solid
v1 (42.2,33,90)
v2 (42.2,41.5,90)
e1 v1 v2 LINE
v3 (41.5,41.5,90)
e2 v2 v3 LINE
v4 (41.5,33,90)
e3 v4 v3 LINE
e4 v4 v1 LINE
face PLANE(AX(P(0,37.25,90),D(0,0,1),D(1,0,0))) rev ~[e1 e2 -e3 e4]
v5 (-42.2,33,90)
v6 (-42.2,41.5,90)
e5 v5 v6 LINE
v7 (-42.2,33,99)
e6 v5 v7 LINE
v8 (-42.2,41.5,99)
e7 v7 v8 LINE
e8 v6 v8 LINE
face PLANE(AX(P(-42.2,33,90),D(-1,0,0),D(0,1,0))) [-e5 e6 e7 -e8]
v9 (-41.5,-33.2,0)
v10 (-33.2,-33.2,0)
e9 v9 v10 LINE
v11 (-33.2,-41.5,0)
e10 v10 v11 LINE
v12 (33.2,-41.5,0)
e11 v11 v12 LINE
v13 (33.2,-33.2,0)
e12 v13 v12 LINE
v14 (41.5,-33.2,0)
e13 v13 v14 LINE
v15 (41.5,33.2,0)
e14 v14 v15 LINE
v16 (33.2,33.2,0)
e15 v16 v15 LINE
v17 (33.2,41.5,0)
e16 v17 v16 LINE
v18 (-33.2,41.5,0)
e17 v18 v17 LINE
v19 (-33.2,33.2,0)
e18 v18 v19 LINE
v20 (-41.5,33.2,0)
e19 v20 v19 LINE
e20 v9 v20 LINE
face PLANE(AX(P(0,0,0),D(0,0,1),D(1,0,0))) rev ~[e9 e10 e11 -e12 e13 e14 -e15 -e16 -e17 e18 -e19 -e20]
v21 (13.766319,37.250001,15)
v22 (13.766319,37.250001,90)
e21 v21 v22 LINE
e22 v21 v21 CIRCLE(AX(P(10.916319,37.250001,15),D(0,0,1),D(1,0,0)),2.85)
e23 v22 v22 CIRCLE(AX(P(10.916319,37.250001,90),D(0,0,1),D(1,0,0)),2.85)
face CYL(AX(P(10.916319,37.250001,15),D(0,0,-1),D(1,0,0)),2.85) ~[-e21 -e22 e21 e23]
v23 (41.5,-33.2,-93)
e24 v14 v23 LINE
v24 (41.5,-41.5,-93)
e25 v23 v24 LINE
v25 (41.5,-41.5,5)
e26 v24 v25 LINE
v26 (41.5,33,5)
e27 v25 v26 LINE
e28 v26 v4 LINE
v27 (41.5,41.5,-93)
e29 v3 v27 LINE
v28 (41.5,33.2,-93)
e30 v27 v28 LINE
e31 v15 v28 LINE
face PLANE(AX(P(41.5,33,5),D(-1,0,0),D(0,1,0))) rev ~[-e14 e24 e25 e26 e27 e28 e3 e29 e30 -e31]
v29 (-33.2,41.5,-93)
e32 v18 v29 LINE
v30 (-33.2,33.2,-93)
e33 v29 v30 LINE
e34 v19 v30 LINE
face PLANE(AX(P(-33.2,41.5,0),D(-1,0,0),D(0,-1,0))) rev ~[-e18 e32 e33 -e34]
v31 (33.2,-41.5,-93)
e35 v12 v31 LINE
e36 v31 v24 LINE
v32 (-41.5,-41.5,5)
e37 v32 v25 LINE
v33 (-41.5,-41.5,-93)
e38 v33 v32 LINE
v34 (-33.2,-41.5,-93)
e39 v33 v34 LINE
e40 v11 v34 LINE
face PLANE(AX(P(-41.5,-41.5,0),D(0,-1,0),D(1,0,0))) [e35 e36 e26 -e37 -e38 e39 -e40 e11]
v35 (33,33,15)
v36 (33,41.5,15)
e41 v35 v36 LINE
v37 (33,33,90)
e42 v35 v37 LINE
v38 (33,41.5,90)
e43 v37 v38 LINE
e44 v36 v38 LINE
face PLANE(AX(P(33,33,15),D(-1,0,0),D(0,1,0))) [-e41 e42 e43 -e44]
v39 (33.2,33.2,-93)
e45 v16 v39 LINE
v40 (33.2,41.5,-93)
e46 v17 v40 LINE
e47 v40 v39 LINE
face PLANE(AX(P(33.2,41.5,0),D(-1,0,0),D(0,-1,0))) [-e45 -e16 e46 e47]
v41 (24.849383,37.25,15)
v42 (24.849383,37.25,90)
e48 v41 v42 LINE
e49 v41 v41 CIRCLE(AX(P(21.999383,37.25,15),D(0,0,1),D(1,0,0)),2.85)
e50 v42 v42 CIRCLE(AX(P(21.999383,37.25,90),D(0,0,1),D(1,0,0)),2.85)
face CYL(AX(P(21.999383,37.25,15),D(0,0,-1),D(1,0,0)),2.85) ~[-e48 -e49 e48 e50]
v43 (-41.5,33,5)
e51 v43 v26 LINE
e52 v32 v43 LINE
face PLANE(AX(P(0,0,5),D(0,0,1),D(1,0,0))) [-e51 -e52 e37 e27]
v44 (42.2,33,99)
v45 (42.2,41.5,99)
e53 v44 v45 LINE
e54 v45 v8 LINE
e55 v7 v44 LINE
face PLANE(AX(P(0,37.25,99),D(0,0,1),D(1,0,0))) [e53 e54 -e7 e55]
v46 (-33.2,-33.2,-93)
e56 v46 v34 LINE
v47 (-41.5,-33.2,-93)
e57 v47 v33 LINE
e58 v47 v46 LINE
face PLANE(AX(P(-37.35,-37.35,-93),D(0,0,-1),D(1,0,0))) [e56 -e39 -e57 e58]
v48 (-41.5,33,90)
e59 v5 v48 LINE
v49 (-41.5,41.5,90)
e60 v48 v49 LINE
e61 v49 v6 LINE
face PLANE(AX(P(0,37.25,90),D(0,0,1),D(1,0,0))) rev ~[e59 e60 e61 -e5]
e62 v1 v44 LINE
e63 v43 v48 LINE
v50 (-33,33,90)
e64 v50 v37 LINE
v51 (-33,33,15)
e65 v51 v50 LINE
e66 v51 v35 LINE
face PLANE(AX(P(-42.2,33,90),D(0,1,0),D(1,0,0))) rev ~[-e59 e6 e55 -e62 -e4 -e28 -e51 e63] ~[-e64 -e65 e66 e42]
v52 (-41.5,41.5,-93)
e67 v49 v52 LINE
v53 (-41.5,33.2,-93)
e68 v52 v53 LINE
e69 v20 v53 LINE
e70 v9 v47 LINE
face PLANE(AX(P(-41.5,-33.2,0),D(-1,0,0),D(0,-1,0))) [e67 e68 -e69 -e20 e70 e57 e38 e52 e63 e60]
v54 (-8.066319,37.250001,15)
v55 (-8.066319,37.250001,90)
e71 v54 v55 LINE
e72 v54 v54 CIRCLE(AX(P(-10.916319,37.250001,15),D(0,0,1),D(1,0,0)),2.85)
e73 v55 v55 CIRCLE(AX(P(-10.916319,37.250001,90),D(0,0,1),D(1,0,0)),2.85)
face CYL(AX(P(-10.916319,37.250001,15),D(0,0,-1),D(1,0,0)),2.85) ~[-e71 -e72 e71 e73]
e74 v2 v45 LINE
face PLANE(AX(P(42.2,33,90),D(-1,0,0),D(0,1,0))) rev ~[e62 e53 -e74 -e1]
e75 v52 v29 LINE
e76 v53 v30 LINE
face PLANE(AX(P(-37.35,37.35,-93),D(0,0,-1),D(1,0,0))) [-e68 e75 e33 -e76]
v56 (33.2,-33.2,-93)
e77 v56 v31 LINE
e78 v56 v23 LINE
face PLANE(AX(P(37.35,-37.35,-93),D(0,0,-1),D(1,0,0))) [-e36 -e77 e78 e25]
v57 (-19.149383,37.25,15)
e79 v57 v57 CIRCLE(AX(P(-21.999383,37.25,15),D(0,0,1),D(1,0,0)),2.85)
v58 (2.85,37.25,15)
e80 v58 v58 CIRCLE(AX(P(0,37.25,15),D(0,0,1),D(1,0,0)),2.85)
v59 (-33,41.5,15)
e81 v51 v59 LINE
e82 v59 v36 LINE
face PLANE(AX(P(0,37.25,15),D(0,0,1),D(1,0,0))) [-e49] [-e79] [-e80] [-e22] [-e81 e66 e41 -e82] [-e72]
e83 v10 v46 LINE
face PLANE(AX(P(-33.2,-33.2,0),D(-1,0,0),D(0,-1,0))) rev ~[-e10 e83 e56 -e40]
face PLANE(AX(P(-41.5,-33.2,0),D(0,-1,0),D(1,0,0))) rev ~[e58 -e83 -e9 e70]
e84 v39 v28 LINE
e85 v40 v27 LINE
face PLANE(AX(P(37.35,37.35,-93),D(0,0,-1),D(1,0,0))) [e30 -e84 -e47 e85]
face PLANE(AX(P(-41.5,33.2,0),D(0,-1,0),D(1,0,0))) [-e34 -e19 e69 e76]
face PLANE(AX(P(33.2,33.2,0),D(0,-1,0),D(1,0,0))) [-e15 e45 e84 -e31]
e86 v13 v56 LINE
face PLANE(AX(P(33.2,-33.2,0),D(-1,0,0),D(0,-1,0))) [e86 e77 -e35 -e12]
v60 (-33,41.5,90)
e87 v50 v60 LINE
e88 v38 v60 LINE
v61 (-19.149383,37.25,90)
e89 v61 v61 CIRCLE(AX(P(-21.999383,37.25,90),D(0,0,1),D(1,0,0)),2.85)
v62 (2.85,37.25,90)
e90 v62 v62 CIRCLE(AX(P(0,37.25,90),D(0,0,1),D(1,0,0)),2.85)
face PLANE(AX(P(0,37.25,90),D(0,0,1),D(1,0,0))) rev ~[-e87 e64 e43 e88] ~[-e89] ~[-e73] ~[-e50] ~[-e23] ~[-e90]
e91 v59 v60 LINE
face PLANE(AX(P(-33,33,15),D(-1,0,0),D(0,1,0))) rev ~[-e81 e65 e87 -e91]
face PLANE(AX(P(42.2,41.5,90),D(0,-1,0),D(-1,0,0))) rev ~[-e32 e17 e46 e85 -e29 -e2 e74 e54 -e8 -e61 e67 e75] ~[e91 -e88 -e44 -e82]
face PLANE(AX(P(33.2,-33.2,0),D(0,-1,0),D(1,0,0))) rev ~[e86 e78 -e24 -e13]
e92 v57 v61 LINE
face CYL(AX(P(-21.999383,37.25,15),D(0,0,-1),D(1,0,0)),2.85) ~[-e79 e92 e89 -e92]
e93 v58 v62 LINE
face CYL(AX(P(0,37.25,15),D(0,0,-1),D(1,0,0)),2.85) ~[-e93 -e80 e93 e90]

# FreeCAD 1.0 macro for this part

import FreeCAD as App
import Part
import Sketcher

V = App.Vector
Q = App.Units.Quantity

doc = App.newDocument("Part")
params = doc.addObject("Spreadsheet::Sheet", "Params")
for row, (alias, value) in enumerate([
    ("sketch1_width", "83 mm"),
    ("pad1_length", "5 mm"),
    ("sketch2_width", "83 mm"),
    ("sketch2_height", "8.5 mm"),
    ("pad2_length", "10 mm"),
    ("sketch3_width", "8.5 mm"),
    ("pad3_length", "75 mm"),
    ("sketch4_diameter", "5.7 mm"),
    ("pad4_length", "75 mm"),
    ("sketch5_width", "84.4 mm"),
    ("sketch5_height", "8.5 mm"),
    ("pad5_length", "9 mm"),
    ("sketch6_width", "8.3 mm"),
    ("pad6_length", "93 mm"),
], start=1):
    params.set(f"A{row}", alias)
    params.set(f"B{row}", "=" + value)
    params.setAlias(f"B{row}", alias)

body = doc.addObject("PartDesign::Body", "Body")

# Sketch on XY plane
sketch1 = doc.addObject("Sketcher::SketchObject", "Sketch")
body.addObject(sketch1)
sketch1.AttachmentSupport = (doc.XY_Plane, [""])
sketch1.MapMode = "FlatFace"
sketch1.addGeometry(Part.LineSegment(V(-42, 42, 0), V(-42, -42, 0)), False)
sketch1.addGeometry(Part.LineSegment(V(-42, -42, 0), V(42, -42, 0)), False)
sketch1.addGeometry(Part.LineSegment(V(42, -42, 0), V(42, 42, 0)), False)
sketch1.addGeometry(Part.LineSegment(V(42, 42, 0), V(-42, 42, 0)), False)
sketch1.addConstraint(Sketcher.Constraint("Coincident", 0, 2, 1, 1))
sketch1.addConstraint(Sketcher.Constraint("Coincident", 1, 2, 2, 1))
sketch1.addConstraint(Sketcher.Constraint("Coincident", 2, 2, 3, 1))
sketch1.addConstraint(Sketcher.Constraint("Coincident", 3, 2, 0, 1))
sketch1.addConstraint(Sketcher.Constraint("Vertical", 0))
sketch1.addConstraint(Sketcher.Constraint("Horizontal", 1))
sketch1.addConstraint(Sketcher.Constraint("Vertical", 2))
sketch1.addConstraint(Sketcher.Constraint("Horizontal", 3))
sketch1.addConstraint(Sketcher.Constraint("Symmetric", 0, 2, 2, 2, -1, 1))
sketch1.addConstraint(Sketcher.Constraint("Equal", 3, 0))
sketch1.addConstraint(Sketcher.Constraint("DistanceX", 1, 1, 1, 2, Q("83 mm")))
sketch1.setExpression("Constraints[10]", "Params.sketch1_width")
pad1 = doc.addObject("PartDesign::Pad", "Pad")
body.addObject(pad1)
pad1.Profile = sketch1
pad1.setExpression("Length", "Params.pad1_length")

# Sketch on XY plane
sketch2 = doc.addObject("Sketcher::SketchObject", "Sketch001")
body.addObject(sketch2)
sketch2.AttachmentSupport = (doc.XY_Plane, [""])
sketch2.MapMode = "FlatFace"
sketch2.AttachmentOffset = App.Placement(V(0, 0, 5), App.Rotation())
sketch2.addGeometry(Part.LineSegment(V(-42, 42, 0), V(-42, 33, 0)), False)
sketch2.addGeometry(Part.LineSegment(V(-42, 33, 0), V(42, 33, 0)), False)
sketch2.addGeometry(Part.LineSegment(V(42, 33, 0), V(42, 42, 0)), False)
sketch2.addGeometry(Part.LineSegment(V(42, 42, 0), V(-42, 42, 0)), False)
sketch2.addConstraint(Sketcher.Constraint("Coincident", 0, 2, 1, 1))
sketch2.addConstraint(Sketcher.Constraint("Coincident", 1, 2, 2, 1))
sketch2.addConstraint(Sketcher.Constraint("Coincident", 2, 2, 3, 1))
sketch2.addConstraint(Sketcher.Constraint("Coincident", 3, 2, 0, 1))
sketch2.addConstraint(Sketcher.Constraint("Vertical", 0))
sketch2.addConstraint(Sketcher.Constraint("Horizontal", 1))
sketch2.addConstraint(Sketcher.Constraint("Vertical", 2))
sketch2.addConstraint(Sketcher.Constraint("Horizontal", 3))
sketch2.addConstraint(Sketcher.Constraint("DistanceX", 1, 1, 1, 2, Q("83 mm")))
sketch2.addConstraint(Sketcher.Constraint("DistanceY", 0, 2, 0, 1, Q("8.5 mm")))
sketch2.addConstraint(Sketcher.Constraint("DistanceY", -1, 1, 0, 2, Q("33 mm")))
sketch2.addConstraint(Sketcher.Constraint("DistanceX", 0, 2, -1, 1, Q("41.5 mm")))
sketch2.setExpression("Constraints[8]", "Params.sketch2_width")
sketch2.setExpression("Constraints[9]", "Params.sketch2_height")
pad2 = doc.addObject("PartDesign::Pad", "Pad001")
body.addObject(pad2)
pad2.Profile = sketch2
pad2.setExpression("Length", "Params.pad2_length")

# Sketch on XY plane
sketch3 = doc.addObject("Sketcher::SketchObject", "Sketch002")
body.addObject(sketch3)
sketch3.AttachmentSupport = (doc.XY_Plane, [""])
sketch3.MapMode = "FlatFace"
sketch3.AttachmentOffset = App.Placement(V(0, 0, 15), App.Rotation())
sketch3.addGeometry(Part.LineSegment(V(-42, 42, 0), V(-42, 33, 0)), False)
sketch3.addGeometry(Part.LineSegment(V(-42, 33, 0), V(-33, 33, 0)), False)
sketch3.addGeometry(Part.LineSegment(V(-33, 33, 0), V(-33, 42, 0)), False)
sketch3.addGeometry(Part.LineSegment(V(-33, 42, 0), V(-42, 42, 0)), False)
sketch3.addGeometry(Part.LineSegment(V(33, 42, 0), V(33, 33, 0)), False)
sketch3.addGeometry(Part.LineSegment(V(33, 33, 0), V(42, 33, 0)), False)
sketch3.addGeometry(Part.LineSegment(V(42, 33, 0), V(42, 42, 0)), False)
sketch3.addGeometry(Part.LineSegment(V(42, 42, 0), V(33, 42, 0)), False)
sketch3.addConstraint(Sketcher.Constraint("Coincident", 0, 2, 1, 1))
sketch3.addConstraint(Sketcher.Constraint("Coincident", 1, 2, 2, 1))
sketch3.addConstraint(Sketcher.Constraint("Coincident", 2, 2, 3, 1))
sketch3.addConstraint(Sketcher.Constraint("Coincident", 3, 2, 0, 1))
sketch3.addConstraint(Sketcher.Constraint("Coincident", 4, 2, 5, 1))
sketch3.addConstraint(Sketcher.Constraint("Coincident", 5, 2, 6, 1))
sketch3.addConstraint(Sketcher.Constraint("Coincident", 6, 2, 7, 1))
sketch3.addConstraint(Sketcher.Constraint("Coincident", 7, 2, 4, 1))
sketch3.addConstraint(Sketcher.Constraint("Vertical", 0))
sketch3.addConstraint(Sketcher.Constraint("Horizontal", 1))
sketch3.addConstraint(Sketcher.Constraint("Vertical", 2))
sketch3.addConstraint(Sketcher.Constraint("Horizontal", 3))
sketch3.addConstraint(Sketcher.Constraint("Vertical", 4))
sketch3.addConstraint(Sketcher.Constraint("Horizontal", 5))
sketch3.addConstraint(Sketcher.Constraint("Vertical", 6))
sketch3.addConstraint(Sketcher.Constraint("Horizontal", 7))
sketch3.addConstraint(Sketcher.Constraint("Symmetric", 1, 2, 4, 2, -2))
sketch3.addConstraint(Sketcher.Constraint("Symmetric", 3, 2, 6, 2, -2))
sketch3.addConstraint(Sketcher.Constraint("Equal", 7, 0))
sketch3.addConstraint(Sketcher.Constraint("DistanceX", 1, 1, 1, 2, Q("8.5 mm")))
sketch3.addConstraint(Sketcher.Constraint("DistanceY", -1, 1, 0, 2, Q("33 mm")))
sketch3.addConstraint(Sketcher.Constraint("DistanceX", 1, 2, -1, 1, Q("33 mm")))
sketch3.setExpression("Constraints[19]", "Params.sketch3_width")
pad3 = doc.addObject("PartDesign::Pad", "Pad002")
body.addObject(pad3)
pad3.Profile = sketch3
pad3.setExpression("Length", "Params.pad3_length")

# Sketch on XY plane
sketch4 = doc.addObject("Sketcher::SketchObject", "Sketch003")
body.addObject(sketch4)
sketch4.AttachmentSupport = (doc.XY_Plane, [""])
sketch4.MapMode = "FlatFace"
sketch4.AttachmentOffset = App.Placement(V(0, 0, 15), App.Rotation())
sketch4.addGeometry(Part.Circle(V(-22, 37.2, 0), V(0, 0, 1), 2.9), False)
sketch4.addGeometry(Part.Circle(V(-10.9, 37.3, 0), V(0, 0, 1), 2.9), False)
sketch4.addGeometry(Part.Circle(V(0, 37.2, 0), V(0, 0, 1), 2.9), False)
sketch4.addGeometry(Part.Circle(V(10.9, 37.3, 0), V(0, 0, 1), 2.9), False)
sketch4.addGeometry(Part.Circle(V(22, 37.2, 0), V(0, 0, 1), 2.9), False)
sketch4.addConstraint(Sketcher.Constraint("Equal", 0, 1))
sketch4.addConstraint(Sketcher.Constraint("Equal", 1, 2))
sketch4.addConstraint(Sketcher.Constraint("Equal", 2, 3))
sketch4.addConstraint(Sketcher.Constraint("Equal", 3, 4))
sketch4.addConstraint(Sketcher.Constraint("Symmetric", 1, 3, 3, 3, -2))
sketch4.addConstraint(Sketcher.Constraint("Symmetric", 0, 3, 4, 3, -2))
sketch4.addConstraint(Sketcher.Constraint("PointOnObject", 2, 3, -2))
sketch4.addConstraint(Sketcher.Constraint("Horizontal", 0, 3, 1, 3))
sketch4.addConstraint(Sketcher.Constraint("Horizontal", 1, 3, 2, 3))
sketch4.addConstraint(Sketcher.Constraint("Diameter", 0, Q("5.7 mm")))
sketch4.addConstraint(Sketcher.Constraint("DistanceY", -1, 1, 0, 3, Q("37.25 mm")))
sketch4.addConstraint(Sketcher.Constraint("DistanceX", 1, 3, -1, 1, Q("10.916319 mm")))
sketch4.addConstraint(Sketcher.Constraint("DistanceX", 0, 3, -1, 1, Q("21.999383 mm")))
sketch4.setExpression("Constraints[9]", "Params.sketch4_diameter")
pad4 = doc.addObject("PartDesign::Pad", "Pad003")
body.addObject(pad4)
pad4.Profile = sketch4
pad4.setExpression("Length", "Params.pad4_length")

# Sketch on XY plane
sketch5 = doc.addObject("Sketcher::SketchObject", "Sketch004")
body.addObject(sketch5)
sketch5.AttachmentSupport = (doc.XY_Plane, [""])
sketch5.MapMode = "FlatFace"
sketch5.AttachmentOffset = App.Placement(V(0, 0, 90), App.Rotation())
sketch5.addGeometry(Part.LineSegment(V(-42, 42, 0), V(-42, 33, 0)), False)
sketch5.addGeometry(Part.LineSegment(V(-42, 33, 0), V(42, 33, 0)), False)
sketch5.addGeometry(Part.LineSegment(V(42, 33, 0), V(42, 42, 0)), False)
sketch5.addGeometry(Part.LineSegment(V(42, 42, 0), V(-42, 42, 0)), False)
sketch5.addConstraint(Sketcher.Constraint("Coincident", 0, 2, 1, 1))
sketch5.addConstraint(Sketcher.Constraint("Coincident", 1, 2, 2, 1))
sketch5.addConstraint(Sketcher.Constraint("Coincident", 2, 2, 3, 1))
sketch5.addConstraint(Sketcher.Constraint("Coincident", 3, 2, 0, 1))
sketch5.addConstraint(Sketcher.Constraint("Vertical", 0))
sketch5.addConstraint(Sketcher.Constraint("Horizontal", 1))
sketch5.addConstraint(Sketcher.Constraint("Vertical", 2))
sketch5.addConstraint(Sketcher.Constraint("Horizontal", 3))
sketch5.addConstraint(Sketcher.Constraint("DistanceX", 1, 1, 1, 2, Q("84.4 mm")))
sketch5.addConstraint(Sketcher.Constraint("DistanceY", 0, 2, 0, 1, Q("8.5 mm")))
sketch5.addConstraint(Sketcher.Constraint("DistanceY", -1, 1, 0, 2, Q("33 mm")))
sketch5.addConstraint(Sketcher.Constraint("DistanceX", 0, 2, -1, 1, Q("42.2 mm")))
sketch5.setExpression("Constraints[8]", "Params.sketch5_width")
sketch5.setExpression("Constraints[9]", "Params.sketch5_height")
pad5 = doc.addObject("PartDesign::Pad", "Pad004")
body.addObject(pad5)
pad5.Profile = sketch5
pad5.setExpression("Length", "Params.pad5_length")

# Sketch on XY plane
sketch6 = doc.addObject("Sketcher::SketchObject", "Sketch005")
body.addObject(sketch6)
sketch6.AttachmentSupport = (doc.XY_Plane, [""])
sketch6.MapMode = "FlatFace"
sketch6.addGeometry(Part.LineSegment(V(-42, -42, 0), V(-42, -33, 0)), False)
sketch6.addGeometry(Part.LineSegment(V(-42, -33, 0), V(-33, -33, 0)), False)
sketch6.addGeometry(Part.LineSegment(V(-33, -33, 0), V(-33, -42, 0)), False)
sketch6.addGeometry(Part.LineSegment(V(-33, -42, 0), V(-42, -42, 0)), False)
sketch6.addGeometry(Part.LineSegment(V(33, -42, 0), V(33, -33, 0)), False)
sketch6.addGeometry(Part.LineSegment(V(33, -33, 0), V(42, -33, 0)), False)
sketch6.addGeometry(Part.LineSegment(V(42, -33, 0), V(42, -42, 0)), False)
sketch6.addGeometry(Part.LineSegment(V(42, -42, 0), V(33, -42, 0)), False)
sketch6.addGeometry(Part.LineSegment(V(-42, 33, 0), V(-42, 42, 0)), False)
sketch6.addGeometry(Part.LineSegment(V(-42, 42, 0), V(-33, 42, 0)), False)
sketch6.addGeometry(Part.LineSegment(V(-33, 42, 0), V(-33, 33, 0)), False)
sketch6.addGeometry(Part.LineSegment(V(-33, 33, 0), V(-42, 33, 0)), False)
sketch6.addGeometry(Part.LineSegment(V(33, 33, 0), V(33, 42, 0)), False)
sketch6.addGeometry(Part.LineSegment(V(33, 42, 0), V(42, 42, 0)), False)
sketch6.addGeometry(Part.LineSegment(V(42, 42, 0), V(42, 33, 0)), False)
sketch6.addGeometry(Part.LineSegment(V(42, 33, 0), V(33, 33, 0)), False)
sketch6.addConstraint(Sketcher.Constraint("Coincident", 0, 2, 1, 1))
sketch6.addConstraint(Sketcher.Constraint("Coincident", 1, 2, 2, 1))
sketch6.addConstraint(Sketcher.Constraint("Coincident", 2, 2, 3, 1))
sketch6.addConstraint(Sketcher.Constraint("Coincident", 3, 2, 0, 1))
sketch6.addConstraint(Sketcher.Constraint("Coincident", 4, 2, 5, 1))
sketch6.addConstraint(Sketcher.Constraint("Coincident", 5, 2, 6, 1))
sketch6.addConstraint(Sketcher.Constraint("Coincident", 6, 2, 7, 1))
sketch6.addConstraint(Sketcher.Constraint("Coincident", 7, 2, 4, 1))
sketch6.addConstraint(Sketcher.Constraint("Coincident", 8, 2, 9, 1))
sketch6.addConstraint(Sketcher.Constraint("Coincident", 9, 2, 10, 1))
sketch6.addConstraint(Sketcher.Constraint("Coincident", 10, 2, 11, 1))
sketch6.addConstraint(Sketcher.Constraint("Coincident", 11, 2, 8, 1))
sketch6.addConstraint(Sketcher.Constraint("Coincident", 12, 2, 13, 1))
sketch6.addConstraint(Sketcher.Constraint("Coincident", 13, 2, 14, 1))
sketch6.addConstraint(Sketcher.Constraint("Coincident", 14, 2, 15, 1))
sketch6.addConstraint(Sketcher.Constraint("Coincident", 15, 2, 12, 1))
sketch6.addConstraint(Sketcher.Constraint("Vertical", 0))
sketch6.addConstraint(Sketcher.Constraint("Horizontal", 1))
sketch6.addConstraint(Sketcher.Constraint("Vertical", 2))
sketch6.addConstraint(Sketcher.Constraint("Horizontal", 3))
sketch6.addConstraint(Sketcher.Constraint("Vertical", 4))
sketch6.addConstraint(Sketcher.Constraint("Horizontal", 5))
sketch6.addConstraint(Sketcher.Constraint("Vertical", 6))
sketch6.addConstraint(Sketcher.Constraint("Horizontal", 7))
sketch6.addConstraint(Sketcher.Constraint("Vertical", 8))
sketch6.addConstraint(Sketcher.Constraint("Horizontal", 9))
sketch6.addConstraint(Sketcher.Constraint("Vertical", 10))
sketch6.addConstraint(Sketcher.Constraint("Horizontal", 11))
sketch6.addConstraint(Sketcher.Constraint("Vertical", 12))
sketch6.addConstraint(Sketcher.Constraint("Horizontal", 13))
sketch6.addConstraint(Sketcher.Constraint("Vertical", 14))
sketch6.addConstraint(Sketcher.Constraint("Horizontal", 15))
sketch6.addConstraint(Sketcher.Constraint("Symmetric", 6, 2, 8, 2, -1, 1))
sketch6.addConstraint(Sketcher.Constraint("Symmetric", 4, 2, 10, 2, -1, 1))
sketch6.addConstraint(Sketcher.Constraint("Symmetric", 2, 2, 12, 2, -1, 1))
sketch6.addConstraint(Sketcher.Constraint("Symmetric", 0, 2, 14, 2, -1, 1))
sketch6.addConstraint(Sketcher.Constraint("Symmetric", 1, 2, 4, 2, -2))
sketch6.addConstraint(Sketcher.Constraint("Symmetric", 3, 2, 6, 2, -2))
sketch6.addConstraint(Sketcher.Constraint("Equal", 15, 0))
sketch6.addConstraint(Sketcher.Constraint("DistanceX", 1, 1, 1, 2, Q("8.3 mm")))
sketch6.addConstraint(Sketcher.Constraint("DistanceX", 0, 2, 5, 2, Q("83 mm")))
sketch6.addConstraint(Sketcher.Constraint("DistanceY", 3, 2, 8, 2, Q("83 mm")))
sketch6.setExpression("Constraints[39]", "Params.sketch6_width")
pad6 = doc.addObject("PartDesign::Pad", "Pad005")
body.addObject(pad6)
pad6.Profile = sketch6
pad6.setExpression("Length", "Params.pad6_length")
pad6.Reversed = True

doc.recompute()
